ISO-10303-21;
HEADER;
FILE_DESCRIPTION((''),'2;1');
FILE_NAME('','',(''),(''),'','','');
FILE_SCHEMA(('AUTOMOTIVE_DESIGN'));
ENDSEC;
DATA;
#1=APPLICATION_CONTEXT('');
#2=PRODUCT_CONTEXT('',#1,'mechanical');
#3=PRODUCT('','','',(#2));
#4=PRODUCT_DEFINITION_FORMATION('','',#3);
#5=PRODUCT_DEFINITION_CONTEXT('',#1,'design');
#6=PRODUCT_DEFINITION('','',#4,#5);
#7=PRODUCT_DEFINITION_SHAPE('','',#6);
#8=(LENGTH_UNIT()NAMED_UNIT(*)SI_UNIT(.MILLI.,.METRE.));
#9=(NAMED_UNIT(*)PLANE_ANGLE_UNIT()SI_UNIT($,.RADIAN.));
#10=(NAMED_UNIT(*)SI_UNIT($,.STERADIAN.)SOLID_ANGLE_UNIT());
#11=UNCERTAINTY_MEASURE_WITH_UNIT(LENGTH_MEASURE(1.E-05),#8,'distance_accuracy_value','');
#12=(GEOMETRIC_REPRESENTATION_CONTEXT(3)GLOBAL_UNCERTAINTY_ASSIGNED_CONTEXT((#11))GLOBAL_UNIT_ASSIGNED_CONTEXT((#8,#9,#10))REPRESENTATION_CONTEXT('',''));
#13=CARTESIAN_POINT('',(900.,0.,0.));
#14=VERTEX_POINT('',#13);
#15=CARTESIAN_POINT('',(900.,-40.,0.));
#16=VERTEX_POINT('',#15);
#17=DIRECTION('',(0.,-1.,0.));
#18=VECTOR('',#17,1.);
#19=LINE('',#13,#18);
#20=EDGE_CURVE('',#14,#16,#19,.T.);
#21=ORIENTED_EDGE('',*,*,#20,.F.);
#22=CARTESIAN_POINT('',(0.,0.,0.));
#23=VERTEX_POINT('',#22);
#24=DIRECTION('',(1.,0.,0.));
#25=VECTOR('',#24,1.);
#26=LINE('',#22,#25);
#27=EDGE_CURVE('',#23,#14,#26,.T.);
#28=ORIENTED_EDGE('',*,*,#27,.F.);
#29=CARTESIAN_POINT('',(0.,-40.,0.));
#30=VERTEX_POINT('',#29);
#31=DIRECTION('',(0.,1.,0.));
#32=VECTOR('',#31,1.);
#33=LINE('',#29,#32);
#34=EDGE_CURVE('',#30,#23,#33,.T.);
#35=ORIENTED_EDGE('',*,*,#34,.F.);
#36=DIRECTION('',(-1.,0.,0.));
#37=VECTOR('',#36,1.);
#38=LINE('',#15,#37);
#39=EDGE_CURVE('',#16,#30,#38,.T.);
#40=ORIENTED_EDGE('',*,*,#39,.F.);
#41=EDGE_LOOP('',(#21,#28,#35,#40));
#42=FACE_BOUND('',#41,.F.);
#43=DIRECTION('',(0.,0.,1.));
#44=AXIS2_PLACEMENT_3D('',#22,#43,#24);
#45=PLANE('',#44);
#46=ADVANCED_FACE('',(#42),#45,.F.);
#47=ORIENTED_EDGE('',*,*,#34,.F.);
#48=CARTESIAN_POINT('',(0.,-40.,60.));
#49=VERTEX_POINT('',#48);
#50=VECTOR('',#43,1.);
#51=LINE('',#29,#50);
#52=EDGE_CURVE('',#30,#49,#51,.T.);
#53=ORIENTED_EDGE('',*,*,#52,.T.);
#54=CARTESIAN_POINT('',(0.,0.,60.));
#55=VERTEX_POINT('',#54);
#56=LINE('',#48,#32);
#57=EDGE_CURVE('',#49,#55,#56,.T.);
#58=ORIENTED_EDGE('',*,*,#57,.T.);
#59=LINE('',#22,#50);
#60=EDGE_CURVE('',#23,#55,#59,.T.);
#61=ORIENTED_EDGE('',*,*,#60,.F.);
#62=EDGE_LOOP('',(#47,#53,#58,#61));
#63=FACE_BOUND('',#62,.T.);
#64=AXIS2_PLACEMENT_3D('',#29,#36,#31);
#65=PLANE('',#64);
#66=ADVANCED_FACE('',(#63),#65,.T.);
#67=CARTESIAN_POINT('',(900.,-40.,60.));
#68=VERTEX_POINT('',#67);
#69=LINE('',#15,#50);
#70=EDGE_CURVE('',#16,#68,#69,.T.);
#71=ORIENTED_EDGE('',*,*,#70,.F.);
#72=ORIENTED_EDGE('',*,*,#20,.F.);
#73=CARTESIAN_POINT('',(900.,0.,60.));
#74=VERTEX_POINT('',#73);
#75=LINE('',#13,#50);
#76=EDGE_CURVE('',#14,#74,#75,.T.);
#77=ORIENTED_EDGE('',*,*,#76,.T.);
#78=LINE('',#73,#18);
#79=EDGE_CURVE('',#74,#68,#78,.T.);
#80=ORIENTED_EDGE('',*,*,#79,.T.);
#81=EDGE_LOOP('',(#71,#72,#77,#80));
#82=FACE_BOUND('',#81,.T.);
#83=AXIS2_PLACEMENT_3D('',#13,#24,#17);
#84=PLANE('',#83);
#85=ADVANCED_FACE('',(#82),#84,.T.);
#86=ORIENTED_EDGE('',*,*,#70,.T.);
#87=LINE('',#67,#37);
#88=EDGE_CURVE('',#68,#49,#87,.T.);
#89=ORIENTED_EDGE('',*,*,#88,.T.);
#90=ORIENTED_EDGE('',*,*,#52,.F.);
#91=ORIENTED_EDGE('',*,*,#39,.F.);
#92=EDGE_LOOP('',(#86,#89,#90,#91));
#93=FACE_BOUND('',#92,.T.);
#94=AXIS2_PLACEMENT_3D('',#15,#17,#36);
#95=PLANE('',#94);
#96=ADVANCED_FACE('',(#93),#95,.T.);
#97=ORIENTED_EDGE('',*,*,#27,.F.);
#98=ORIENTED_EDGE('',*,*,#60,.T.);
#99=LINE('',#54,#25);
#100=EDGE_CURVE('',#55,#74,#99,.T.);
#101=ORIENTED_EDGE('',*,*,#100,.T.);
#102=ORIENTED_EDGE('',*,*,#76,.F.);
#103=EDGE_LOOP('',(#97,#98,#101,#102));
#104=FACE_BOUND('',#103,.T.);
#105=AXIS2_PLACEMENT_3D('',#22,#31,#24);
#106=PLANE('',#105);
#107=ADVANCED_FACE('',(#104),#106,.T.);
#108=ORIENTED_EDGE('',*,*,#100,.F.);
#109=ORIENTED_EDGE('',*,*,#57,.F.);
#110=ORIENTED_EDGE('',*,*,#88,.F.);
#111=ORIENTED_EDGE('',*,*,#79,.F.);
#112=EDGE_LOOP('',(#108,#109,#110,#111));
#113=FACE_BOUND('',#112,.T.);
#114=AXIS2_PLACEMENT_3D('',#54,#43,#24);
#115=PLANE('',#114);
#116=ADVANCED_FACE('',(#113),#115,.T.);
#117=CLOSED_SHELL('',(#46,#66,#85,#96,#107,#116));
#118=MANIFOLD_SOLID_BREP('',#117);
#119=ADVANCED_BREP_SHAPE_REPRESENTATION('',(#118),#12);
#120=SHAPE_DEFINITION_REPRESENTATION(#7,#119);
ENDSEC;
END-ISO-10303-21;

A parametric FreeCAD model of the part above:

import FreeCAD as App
import Part
import Sketcher
Q = App.Units.Quantity

doc = App.newDocument("Part")
body = doc.addObject("PartDesign::Body", "Body")

sketch1 = doc.addObject("Sketcher::SketchObject", "Sketch")
body.addObject(sketch1)
sketch1.AttachmentSupport = (doc.XY_Plane, [""])
sketch1.MapMode = "FlatFace"
sketch1.addGeometry([
    Part.LineSegment(App.Vector(900, 0, 0), App.Vector(0, 0, 0)),
    Part.LineSegment(App.Vector(0, 0, 0), App.Vector(0, -40, 0)),
    Part.LineSegment(App.Vector(0, -40, 0), App.Vector(900, -40, 0)),
    Part.LineSegment(App.Vector(900, -40, 0), App.Vector(900, 0, 0)),
], False)
sketch1.addConstraint([
    Sketcher.Constraint("Coincident", 0, 2, 1, 1),
    Sketcher.Constraint("Coincident", 1, 2, 2, 1),
    Sketcher.Constraint("Coincident", 2, 2, 3, 1),
    Sketcher.Constraint("Coincident", 3, 2, 0, 1),
    Sketcher.Constraint("Horizontal", 0),
    Sketcher.Constraint("Vertical", 1),
    Sketcher.Constraint("Horizontal", 2),
    Sketcher.Constraint("Vertical", 3),
    Sketcher.Constraint("Coincident", 0, 2, -1, 1),
    Sketcher.Constraint("DistanceX", 0, 2, 0, 1, Q("900 mm")),
    Sketcher.Constraint("DistanceY", 1, 2, 1, 1, Q("40 mm")),
])
pad1 = doc.addObject("PartDesign::Pad", "Pad")
body.addObject(pad1)
pad1.Profile = sketch1
pad1.Length = 60

doc.recompute()
